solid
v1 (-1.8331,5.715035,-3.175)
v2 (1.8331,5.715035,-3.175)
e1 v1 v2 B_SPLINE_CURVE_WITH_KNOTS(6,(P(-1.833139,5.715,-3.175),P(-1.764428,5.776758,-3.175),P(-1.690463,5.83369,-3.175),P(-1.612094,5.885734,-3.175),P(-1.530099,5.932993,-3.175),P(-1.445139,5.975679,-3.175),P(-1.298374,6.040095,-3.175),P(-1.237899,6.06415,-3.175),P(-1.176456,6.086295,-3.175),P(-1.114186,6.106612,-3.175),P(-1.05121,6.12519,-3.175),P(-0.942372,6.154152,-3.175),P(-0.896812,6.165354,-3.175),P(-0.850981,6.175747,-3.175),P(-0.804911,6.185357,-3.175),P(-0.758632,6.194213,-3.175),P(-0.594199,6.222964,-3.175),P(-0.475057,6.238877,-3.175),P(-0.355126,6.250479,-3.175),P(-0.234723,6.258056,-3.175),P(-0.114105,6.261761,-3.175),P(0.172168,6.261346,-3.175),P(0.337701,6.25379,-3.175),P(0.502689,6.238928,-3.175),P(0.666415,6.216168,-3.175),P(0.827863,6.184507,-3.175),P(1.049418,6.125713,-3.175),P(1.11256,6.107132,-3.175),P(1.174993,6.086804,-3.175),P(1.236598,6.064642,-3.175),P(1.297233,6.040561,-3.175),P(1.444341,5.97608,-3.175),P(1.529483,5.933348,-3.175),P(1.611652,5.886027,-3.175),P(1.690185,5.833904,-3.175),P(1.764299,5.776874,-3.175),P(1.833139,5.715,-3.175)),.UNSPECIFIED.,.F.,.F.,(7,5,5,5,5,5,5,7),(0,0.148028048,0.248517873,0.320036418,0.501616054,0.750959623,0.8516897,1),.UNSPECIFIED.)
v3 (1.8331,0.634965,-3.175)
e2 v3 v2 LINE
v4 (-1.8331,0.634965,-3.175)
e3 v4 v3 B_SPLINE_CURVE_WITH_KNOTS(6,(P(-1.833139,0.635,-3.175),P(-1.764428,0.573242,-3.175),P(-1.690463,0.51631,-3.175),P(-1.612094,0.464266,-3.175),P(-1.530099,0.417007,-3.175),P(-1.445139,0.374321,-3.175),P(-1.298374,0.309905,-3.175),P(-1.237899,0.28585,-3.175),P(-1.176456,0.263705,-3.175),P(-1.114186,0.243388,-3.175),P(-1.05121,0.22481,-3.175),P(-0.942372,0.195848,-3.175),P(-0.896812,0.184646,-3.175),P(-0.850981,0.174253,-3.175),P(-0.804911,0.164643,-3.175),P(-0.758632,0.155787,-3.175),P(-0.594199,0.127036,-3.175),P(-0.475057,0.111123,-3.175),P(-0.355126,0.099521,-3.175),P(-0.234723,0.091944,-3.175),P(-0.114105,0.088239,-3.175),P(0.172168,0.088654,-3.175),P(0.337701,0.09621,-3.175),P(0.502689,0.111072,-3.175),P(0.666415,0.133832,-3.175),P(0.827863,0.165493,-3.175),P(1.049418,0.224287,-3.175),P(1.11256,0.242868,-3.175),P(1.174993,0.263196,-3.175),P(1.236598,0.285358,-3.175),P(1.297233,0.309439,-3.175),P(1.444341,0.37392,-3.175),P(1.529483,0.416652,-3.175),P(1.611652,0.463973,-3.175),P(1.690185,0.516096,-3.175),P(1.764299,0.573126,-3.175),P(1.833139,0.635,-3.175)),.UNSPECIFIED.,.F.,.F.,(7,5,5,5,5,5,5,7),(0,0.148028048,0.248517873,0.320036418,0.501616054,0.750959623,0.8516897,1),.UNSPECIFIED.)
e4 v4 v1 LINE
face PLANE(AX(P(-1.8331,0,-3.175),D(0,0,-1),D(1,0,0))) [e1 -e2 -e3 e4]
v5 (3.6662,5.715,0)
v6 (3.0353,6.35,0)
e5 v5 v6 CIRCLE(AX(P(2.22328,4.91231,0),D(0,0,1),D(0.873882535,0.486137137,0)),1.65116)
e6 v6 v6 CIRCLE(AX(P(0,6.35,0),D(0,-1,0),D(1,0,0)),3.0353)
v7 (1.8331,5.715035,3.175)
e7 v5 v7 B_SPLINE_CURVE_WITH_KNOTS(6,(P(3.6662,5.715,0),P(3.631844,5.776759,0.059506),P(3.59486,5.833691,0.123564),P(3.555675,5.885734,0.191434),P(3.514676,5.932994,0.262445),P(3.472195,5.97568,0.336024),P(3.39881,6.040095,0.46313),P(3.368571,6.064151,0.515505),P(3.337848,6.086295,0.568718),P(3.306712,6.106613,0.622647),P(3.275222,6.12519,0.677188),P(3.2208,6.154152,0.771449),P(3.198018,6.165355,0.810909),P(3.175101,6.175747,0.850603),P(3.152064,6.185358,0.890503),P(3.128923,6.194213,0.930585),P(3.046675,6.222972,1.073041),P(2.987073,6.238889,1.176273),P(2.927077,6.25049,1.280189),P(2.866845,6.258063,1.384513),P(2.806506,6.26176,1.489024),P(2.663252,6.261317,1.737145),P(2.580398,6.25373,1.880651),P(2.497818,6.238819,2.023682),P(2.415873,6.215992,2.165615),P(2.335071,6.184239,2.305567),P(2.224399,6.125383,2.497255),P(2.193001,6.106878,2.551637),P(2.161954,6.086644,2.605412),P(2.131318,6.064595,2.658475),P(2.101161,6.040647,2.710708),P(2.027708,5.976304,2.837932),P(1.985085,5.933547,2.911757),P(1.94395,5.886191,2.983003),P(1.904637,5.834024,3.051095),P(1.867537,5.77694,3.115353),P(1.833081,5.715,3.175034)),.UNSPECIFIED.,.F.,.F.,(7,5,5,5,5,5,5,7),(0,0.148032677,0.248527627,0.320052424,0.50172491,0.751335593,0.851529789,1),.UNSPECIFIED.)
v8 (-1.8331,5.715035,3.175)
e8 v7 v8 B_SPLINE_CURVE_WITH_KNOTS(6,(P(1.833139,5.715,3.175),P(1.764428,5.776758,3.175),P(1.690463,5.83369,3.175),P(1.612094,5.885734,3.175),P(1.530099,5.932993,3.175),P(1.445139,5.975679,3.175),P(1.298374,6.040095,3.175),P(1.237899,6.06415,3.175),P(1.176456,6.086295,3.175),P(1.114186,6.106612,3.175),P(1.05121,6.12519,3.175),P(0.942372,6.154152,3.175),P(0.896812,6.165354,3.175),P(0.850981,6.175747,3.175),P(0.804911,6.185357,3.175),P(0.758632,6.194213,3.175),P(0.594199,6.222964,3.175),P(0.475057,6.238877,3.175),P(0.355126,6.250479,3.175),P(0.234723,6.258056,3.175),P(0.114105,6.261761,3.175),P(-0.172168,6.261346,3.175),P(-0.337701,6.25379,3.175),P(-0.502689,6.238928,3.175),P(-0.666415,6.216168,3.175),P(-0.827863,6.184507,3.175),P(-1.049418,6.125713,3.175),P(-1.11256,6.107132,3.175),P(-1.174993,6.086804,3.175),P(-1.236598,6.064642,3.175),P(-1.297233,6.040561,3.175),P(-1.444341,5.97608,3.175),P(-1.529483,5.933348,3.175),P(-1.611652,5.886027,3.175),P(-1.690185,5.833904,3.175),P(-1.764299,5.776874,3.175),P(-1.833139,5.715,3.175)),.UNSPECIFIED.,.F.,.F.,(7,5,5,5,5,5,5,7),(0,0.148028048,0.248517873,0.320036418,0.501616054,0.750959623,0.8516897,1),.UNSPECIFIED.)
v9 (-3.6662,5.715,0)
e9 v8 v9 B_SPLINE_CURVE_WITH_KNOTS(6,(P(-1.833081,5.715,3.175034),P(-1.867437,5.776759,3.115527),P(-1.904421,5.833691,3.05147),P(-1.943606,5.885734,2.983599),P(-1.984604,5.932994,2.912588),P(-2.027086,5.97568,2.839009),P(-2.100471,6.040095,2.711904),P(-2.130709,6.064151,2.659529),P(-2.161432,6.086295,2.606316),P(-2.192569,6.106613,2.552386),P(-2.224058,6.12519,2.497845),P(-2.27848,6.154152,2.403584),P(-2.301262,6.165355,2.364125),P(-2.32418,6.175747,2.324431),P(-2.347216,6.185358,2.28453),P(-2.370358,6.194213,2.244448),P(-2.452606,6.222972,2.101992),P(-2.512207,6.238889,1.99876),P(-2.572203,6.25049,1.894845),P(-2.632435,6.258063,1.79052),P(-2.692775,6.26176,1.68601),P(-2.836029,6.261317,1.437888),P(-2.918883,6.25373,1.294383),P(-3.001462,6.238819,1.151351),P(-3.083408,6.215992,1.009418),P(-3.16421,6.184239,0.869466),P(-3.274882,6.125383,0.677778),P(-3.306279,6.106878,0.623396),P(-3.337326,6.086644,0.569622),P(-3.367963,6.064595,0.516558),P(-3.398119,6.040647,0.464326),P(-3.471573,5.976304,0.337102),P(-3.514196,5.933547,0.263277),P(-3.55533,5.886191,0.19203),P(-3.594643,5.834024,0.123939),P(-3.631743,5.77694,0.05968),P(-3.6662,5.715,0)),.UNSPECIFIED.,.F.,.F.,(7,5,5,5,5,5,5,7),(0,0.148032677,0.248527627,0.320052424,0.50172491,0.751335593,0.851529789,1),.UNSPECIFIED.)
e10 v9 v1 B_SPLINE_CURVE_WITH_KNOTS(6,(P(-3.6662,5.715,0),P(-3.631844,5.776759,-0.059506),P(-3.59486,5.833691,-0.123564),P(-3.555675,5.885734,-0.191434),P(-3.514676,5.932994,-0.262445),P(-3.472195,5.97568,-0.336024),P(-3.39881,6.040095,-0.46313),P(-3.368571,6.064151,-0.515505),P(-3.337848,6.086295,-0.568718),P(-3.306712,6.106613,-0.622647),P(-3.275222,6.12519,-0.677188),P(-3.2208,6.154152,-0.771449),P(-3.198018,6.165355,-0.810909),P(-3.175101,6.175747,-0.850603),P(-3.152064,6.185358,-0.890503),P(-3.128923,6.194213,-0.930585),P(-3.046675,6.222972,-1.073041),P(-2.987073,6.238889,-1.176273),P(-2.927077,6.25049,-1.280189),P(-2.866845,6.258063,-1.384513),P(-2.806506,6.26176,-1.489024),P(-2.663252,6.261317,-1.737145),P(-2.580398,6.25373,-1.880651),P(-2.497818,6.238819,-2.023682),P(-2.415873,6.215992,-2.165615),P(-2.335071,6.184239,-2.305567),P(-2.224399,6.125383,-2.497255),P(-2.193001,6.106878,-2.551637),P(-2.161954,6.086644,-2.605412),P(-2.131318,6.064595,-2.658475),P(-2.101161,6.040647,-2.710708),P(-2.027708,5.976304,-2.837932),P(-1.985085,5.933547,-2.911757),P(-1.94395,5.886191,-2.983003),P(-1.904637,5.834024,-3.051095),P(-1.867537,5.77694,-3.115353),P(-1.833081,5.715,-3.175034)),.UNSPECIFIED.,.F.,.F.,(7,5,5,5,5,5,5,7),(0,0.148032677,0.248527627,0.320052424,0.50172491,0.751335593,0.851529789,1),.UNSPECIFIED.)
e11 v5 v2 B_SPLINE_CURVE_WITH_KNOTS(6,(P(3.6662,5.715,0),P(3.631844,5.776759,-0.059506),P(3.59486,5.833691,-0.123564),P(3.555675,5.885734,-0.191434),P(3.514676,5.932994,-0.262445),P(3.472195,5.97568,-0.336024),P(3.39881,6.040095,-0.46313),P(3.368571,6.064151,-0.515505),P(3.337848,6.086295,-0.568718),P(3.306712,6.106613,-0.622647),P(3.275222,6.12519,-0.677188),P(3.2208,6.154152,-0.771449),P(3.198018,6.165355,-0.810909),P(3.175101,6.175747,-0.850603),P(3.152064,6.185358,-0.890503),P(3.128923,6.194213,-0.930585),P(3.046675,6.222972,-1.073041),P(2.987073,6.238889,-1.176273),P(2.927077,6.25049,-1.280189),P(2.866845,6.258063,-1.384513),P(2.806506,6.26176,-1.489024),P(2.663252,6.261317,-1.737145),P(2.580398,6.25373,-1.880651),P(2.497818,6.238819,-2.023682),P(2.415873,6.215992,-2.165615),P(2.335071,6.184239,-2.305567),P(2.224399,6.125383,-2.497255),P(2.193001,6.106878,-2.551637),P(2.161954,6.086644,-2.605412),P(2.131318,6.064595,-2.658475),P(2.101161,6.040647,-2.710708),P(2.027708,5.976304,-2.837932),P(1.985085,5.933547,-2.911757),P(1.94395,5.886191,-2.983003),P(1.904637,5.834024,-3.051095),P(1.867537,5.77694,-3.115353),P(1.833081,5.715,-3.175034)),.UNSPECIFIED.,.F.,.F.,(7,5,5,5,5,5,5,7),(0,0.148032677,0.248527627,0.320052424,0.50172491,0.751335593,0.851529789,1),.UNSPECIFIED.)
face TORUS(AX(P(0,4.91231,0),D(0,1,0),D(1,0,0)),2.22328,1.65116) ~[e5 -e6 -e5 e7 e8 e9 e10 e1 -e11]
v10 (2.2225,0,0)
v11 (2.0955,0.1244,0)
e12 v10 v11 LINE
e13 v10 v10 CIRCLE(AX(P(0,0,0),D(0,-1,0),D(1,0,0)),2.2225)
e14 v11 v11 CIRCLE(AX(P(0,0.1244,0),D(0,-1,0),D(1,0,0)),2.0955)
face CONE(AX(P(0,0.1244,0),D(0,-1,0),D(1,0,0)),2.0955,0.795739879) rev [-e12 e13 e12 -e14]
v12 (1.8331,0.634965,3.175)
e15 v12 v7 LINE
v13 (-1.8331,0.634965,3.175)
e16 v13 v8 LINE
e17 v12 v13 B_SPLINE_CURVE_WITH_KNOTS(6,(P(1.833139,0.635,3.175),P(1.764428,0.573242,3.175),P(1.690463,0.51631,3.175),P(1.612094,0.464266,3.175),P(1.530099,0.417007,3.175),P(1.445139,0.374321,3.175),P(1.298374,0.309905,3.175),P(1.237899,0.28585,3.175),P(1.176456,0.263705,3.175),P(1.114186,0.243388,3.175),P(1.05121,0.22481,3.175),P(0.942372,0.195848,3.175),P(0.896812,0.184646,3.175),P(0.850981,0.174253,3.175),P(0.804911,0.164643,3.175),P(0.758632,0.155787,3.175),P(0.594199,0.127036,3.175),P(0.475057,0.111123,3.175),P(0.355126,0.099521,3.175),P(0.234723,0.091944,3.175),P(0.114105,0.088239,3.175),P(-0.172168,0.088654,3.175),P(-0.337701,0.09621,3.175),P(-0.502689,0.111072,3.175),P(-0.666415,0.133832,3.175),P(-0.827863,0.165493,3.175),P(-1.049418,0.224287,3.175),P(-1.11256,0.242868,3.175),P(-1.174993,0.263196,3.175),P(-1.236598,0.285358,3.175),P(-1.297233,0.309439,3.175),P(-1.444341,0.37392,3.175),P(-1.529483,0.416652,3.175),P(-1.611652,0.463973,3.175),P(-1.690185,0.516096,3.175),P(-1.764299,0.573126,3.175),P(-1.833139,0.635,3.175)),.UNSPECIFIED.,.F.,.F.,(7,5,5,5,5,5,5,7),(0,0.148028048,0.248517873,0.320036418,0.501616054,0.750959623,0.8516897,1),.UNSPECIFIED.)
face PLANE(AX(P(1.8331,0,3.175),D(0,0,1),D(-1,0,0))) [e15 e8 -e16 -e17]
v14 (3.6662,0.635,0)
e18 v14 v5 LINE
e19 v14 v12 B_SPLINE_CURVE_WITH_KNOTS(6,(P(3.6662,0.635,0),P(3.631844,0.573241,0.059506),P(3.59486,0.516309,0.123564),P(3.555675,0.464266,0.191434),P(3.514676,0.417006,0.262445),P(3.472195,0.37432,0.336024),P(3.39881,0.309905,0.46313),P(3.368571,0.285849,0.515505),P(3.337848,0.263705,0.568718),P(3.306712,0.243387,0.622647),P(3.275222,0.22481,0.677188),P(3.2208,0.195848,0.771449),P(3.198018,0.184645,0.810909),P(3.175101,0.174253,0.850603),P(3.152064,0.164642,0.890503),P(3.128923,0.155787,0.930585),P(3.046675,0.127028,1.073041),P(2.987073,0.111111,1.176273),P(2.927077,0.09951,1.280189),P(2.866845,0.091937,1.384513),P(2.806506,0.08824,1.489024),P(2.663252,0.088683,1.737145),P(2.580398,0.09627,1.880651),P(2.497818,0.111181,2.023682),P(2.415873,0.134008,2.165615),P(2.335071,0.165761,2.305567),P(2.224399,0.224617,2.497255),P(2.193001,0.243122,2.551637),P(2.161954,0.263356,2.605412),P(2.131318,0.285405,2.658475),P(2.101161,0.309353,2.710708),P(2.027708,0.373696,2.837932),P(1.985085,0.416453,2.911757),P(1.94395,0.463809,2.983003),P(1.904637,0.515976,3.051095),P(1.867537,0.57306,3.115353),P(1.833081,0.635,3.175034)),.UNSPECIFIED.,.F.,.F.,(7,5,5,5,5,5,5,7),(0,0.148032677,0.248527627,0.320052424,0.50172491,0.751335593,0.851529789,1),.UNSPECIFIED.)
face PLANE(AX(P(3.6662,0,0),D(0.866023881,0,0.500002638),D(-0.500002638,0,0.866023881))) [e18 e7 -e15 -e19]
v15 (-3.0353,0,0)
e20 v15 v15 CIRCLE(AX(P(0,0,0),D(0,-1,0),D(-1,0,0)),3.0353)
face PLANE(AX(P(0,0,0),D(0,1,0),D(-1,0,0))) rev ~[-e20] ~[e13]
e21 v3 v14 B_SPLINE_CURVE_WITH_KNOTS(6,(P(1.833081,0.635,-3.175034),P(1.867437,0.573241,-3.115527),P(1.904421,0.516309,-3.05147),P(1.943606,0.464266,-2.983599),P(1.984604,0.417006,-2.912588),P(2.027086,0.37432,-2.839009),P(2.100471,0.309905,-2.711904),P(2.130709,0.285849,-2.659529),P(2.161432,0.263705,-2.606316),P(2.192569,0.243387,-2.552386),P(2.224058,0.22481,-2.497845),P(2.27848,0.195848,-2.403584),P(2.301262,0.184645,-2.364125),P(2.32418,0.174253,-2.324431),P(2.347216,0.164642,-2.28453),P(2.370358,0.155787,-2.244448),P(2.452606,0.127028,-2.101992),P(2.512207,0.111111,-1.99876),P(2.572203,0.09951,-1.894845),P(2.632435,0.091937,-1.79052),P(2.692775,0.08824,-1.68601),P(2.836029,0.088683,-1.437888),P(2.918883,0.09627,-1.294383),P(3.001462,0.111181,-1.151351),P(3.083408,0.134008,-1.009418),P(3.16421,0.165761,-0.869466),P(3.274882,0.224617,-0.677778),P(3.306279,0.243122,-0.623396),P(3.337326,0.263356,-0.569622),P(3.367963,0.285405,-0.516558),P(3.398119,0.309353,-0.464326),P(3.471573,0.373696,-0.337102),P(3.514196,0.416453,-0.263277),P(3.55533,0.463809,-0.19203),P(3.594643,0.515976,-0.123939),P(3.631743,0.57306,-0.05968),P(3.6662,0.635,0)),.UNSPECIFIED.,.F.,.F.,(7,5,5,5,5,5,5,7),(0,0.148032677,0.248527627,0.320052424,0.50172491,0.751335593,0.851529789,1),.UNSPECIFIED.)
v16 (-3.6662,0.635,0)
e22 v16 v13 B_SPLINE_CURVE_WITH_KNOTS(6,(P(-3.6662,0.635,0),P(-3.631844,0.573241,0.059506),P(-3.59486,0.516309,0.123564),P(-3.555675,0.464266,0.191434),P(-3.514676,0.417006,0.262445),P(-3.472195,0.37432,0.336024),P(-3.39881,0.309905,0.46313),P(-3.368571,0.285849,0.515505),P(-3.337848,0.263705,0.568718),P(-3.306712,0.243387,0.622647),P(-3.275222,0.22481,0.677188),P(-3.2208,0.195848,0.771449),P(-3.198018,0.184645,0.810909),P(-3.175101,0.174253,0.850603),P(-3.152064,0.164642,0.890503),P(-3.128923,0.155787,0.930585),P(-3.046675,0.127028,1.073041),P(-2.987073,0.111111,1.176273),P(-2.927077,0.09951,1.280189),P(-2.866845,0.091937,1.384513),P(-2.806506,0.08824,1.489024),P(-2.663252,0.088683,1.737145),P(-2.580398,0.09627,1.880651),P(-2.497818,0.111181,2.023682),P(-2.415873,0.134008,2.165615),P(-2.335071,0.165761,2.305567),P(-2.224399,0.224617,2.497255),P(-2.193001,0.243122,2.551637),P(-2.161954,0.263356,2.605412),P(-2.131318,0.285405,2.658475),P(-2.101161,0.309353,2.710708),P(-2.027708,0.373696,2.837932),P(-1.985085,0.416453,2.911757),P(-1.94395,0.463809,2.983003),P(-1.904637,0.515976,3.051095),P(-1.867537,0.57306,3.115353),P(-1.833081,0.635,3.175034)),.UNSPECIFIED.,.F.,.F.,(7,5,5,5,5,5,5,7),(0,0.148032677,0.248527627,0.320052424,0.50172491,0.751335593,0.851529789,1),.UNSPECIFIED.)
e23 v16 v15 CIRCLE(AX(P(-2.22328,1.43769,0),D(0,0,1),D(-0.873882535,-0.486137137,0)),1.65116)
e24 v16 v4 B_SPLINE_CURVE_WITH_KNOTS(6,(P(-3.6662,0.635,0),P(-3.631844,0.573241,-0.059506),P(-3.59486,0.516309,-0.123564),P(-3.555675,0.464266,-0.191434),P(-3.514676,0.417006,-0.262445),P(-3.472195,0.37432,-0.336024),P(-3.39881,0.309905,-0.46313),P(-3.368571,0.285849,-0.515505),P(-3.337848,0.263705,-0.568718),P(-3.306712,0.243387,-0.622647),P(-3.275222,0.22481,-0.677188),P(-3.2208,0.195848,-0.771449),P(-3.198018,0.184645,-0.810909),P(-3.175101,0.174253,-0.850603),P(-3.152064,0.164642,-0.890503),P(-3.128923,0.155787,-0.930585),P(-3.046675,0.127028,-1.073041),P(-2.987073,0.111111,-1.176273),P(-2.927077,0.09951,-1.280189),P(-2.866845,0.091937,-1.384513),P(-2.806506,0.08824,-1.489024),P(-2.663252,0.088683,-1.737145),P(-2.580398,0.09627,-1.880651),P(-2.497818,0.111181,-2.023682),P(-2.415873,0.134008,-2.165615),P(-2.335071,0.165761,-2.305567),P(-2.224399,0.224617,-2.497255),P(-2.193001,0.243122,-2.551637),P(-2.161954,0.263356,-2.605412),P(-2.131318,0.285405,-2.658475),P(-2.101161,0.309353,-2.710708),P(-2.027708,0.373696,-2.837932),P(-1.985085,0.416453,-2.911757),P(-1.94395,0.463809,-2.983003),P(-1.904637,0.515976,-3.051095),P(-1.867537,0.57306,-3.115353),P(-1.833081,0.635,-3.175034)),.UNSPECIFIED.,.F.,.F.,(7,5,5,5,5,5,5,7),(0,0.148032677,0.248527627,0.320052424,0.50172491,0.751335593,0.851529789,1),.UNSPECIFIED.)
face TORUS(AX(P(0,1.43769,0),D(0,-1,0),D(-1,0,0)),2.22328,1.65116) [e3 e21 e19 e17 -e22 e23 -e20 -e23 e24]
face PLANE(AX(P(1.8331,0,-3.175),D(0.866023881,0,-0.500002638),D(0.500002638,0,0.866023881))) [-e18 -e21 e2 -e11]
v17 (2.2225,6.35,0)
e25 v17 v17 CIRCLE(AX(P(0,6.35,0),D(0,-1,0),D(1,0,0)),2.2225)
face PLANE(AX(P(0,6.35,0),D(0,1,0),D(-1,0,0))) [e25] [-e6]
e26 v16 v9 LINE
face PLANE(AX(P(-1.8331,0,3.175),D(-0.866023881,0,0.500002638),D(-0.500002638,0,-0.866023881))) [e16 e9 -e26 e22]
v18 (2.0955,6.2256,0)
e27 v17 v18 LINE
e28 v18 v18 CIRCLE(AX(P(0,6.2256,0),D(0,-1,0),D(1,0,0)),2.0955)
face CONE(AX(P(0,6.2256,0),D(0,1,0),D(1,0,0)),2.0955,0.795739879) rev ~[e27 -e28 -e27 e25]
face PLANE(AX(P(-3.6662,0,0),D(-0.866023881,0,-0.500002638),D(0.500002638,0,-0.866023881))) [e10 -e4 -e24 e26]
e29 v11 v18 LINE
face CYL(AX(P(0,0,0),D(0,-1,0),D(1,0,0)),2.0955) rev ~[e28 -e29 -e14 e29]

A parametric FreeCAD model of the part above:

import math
import FreeCAD as App
import Part
import Sketcher
Q = App.Units.Quantity


def edges_at(feature, points):
    """Names of the edges that pass closest to the given points."""
    edges = feature.Shape.Edges
    near = lambda p: min(range(len(edges)), key=lambda i: edges[i].distToShape(Part.Vertex(*p))[0])
    return sorted({f"Edge{near(p) + 1}" for p in points})

doc = App.newDocument("Part")
body = doc.addObject("PartDesign::Body", "Body")

sketch1 = doc.addObject("Sketcher::SketchObject", "Sketch")
body.addObject(sketch1)
sketch1.AttachmentSupport = (doc.XZ_Plane, [""])
sketch1.MapMode = "FlatFace"
sketch1.addGeometry([
    Part.LineSegment(App.Vector(3.6662, 0, 0), App.Vector(1.8331, -3.175, 0)),
    Part.LineSegment(App.Vector(1.8331, -3.175, 0), App.Vector(-1.8331, -3.175, 0)),
    Part.LineSegment(App.Vector(-1.8331, -3.175, 0), App.Vector(-3.6662, 0, 0)),
    Part.LineSegment(App.Vector(-3.6662, 0, 0), App.Vector(-1.8331, 3.175, 0)),
    Part.LineSegment(App.Vector(-1.8331, 3.175, 0), App.Vector(1.8331, 3.175, 0)),
    Part.LineSegment(App.Vector(1.8331, 3.175, 0), App.Vector(3.6662, 0, 0)),
], False)
sketch1.addConstraint([
    Sketcher.Constraint("Coincident", 0, 2, 1, 1),
    Sketcher.Constraint("Coincident", 1, 2, 2, 1),
    Sketcher.Constraint("Coincident", 2, 2, 3, 1),
    Sketcher.Constraint("Coincident", 3, 2, 4, 1),
    Sketcher.Constraint("Coincident", 4, 2, 5, 1),
    Sketcher.Constraint("Coincident", 5, 2, 0, 1),
    Sketcher.Constraint("Horizontal", 1),
    Sketcher.Constraint("Horizontal", 4),
    Sketcher.Constraint("Symmetric", 0, 2, 3, 2, -1, 1),
    Sketcher.Constraint("Symmetric", 2, 2, 5, 2, -1, 1),
    Sketcher.Constraint("PointOnObject", 2, 2, -1),
    Sketcher.Constraint("Parallel", 2, 5),
    Sketcher.Constraint("Vertical", 1, 2, 3, 2),
    Sketcher.Constraint("DistanceY", 1, 2, 3, 2, Q("0.25 in")),
    Sketcher.Constraint("Angle", 0, Q("-120.0002 deg")),
    Sketcher.Constraint("DistanceX", 1, 2, 1, 1, Q("3.6662 mm")),
])
pad1 = doc.addObject("PartDesign::Pad", "Pad")
body.addObject(pad1)
pad1.Profile = sketch1
pad1.Length = Q("0.25 in")
pad1.Reversed = True

sketch2 = doc.addObject("Sketcher::SketchObject", "Sketch001")
body.addObject(sketch2)
sketch2.AttachmentSupport = (doc.XZ_Plane, [""])
sketch2.MapMode = "FlatFace"
sketch2.addGeometry(Part.Circle(App.Vector(0, 0, 0), App.Vector(0, 0, 1), 2.0955), False)
sketch2.addConstraint([
    Sketcher.Constraint("Coincident", 0, 3, -1, 1),
    Sketcher.Constraint("Diameter", 0, Q("0.165 in")),
])
pocket1 = doc.addObject("PartDesign::Pocket", "Pocket")
body.addObject(pocket1)
pocket1.Profile = sketch2
pocket1.Length = Q("0.5 in")
doc.recompute()

chamfer = doc.addObject("PartDesign::Chamfer", "Chamfer")
body.addObject(chamfer)
chamfer.Base = (pocket1, edges_at(pocket1, [(-2.095, 0, 0)]))
chamfer.ChamferType = "Two distances"
chamfer.Size = Q("0.005 in")
chamfer.Size2 = Q("0.0048976 in")

sketch3 = doc.addObject("Sketcher::SketchObject", "Sketch002")
body.addObject(sketch3)
sketch3.AttachmentSupport = (doc.XY_Plane, [""])
sketch3.MapMode = "FlatFace"
sketch3.addGeometry([
    Part.LineSegment(App.Vector(-4.1154, -0.8715, 0), App.Vector(0, 0, 0)),
    Part.LineSegment(App.Vector(0, 0, 0), App.Vector(-3.0353, 0, 0)),
    Part.ArcOfCircle(Part.Circle(App.Vector(-2.2234, 1.4376, 0), App.Vector(0, 0, 1), 1.651011), math.radians(-150.913711), math.radians(-119.456055)),
    Part.LineSegment(App.Vector(-3.6662, 0.635, 0), App.Vector(-4.1154, -0.8715, 0)),
], False)
sketch3.addConstraint([
    Sketcher.Constraint("Coincident", 0, 2, 1, 1),
    Sketcher.Constraint("Coincident", 1, 2, 2, 2),
    Sketcher.Constraint("Coincident", 2, 1, 3, 1),
    Sketcher.Constraint("Coincident", 3, 2, 0, 1),
    Sketcher.Constraint("Horizontal", 1),
    Sketcher.Constraint("Coincident", 0, 2, -1, 1),
    Sketcher.Constraint("Radius", 2, Q("0.065 in")),
    Sketcher.Constraint("DistanceX", 1, 2, 1, 1, Q("0.1195 in")),
    Sketcher.Constraint("DistanceY", -1, 1, 2, 1, Q("0.025 in")),
    Sketcher.Constraint("Distance", 3, Q("0.0619 in")),
    Sketcher.Constraint("DistanceY", -1, 1, 2, 3, Q("0.0566 in")),
    Sketcher.Constraint("DistanceY", 3, 2, -1, 1, Q("0.0343 in")),
])
groove = doc.addObject("PartDesign::Groove", "Groove")
body.addObject(groove)
groove.Profile = sketch3
groove.ReferenceAxis = (sketch3, ["V_Axis"])
groove.Angle = 360
doc.recompute()

chamfer2 = doc.addObject("PartDesign::Chamfer", "Chamfer001")
body.addObject(chamfer2)
chamfer2.Base = (groove, edges_at(groove, [(-2.095, 6.35, 0)]))
chamfer2.ChamferType = "Two distances"
chamfer2.Size = Q("0.005 in")
chamfer2.Size2 = Q("0.0048976 in")

sketch4 = doc.addObject("Sketcher::SketchObject", "Sketch003")
body.addObject(sketch4)
sketch4.AttachmentSupport = (doc.XY_Plane, [""])
sketch4.MapMode = "FlatFace"
sketch4.addGeometry([
    Part.LineSegment(App.Vector(4.2663, 7.2532, 0), App.Vector(0, 6.3504, 0)),
    Part.LineSegment(App.Vector(0, 6.3504, 0), App.Vector(3.0353, 6.35, 0)),
    Part.ArcOfCircle(Part.Circle(App.Vector(2.2234, 4.9124, 0), App.Vector(0, 0, 1), 1.651011), math.radians(29.086289), math.radians(60.543945)),
    Part.LineSegment(App.Vector(3.6662, 5.715, 0), App.Vector(4.2663, 7.2532, 0)),
], False)
sketch4.addConstraint([
    Sketcher.Constraint("Coincident", 0, 2, 1, 1),
    Sketcher.Constraint("Coincident", 1, 2, 2, 2),
    Sketcher.Constraint("Coincident", 2, 1, 3, 1),
    Sketcher.Constraint("Coincident", 3, 2, 0, 1),
    Sketcher.Constraint("PointOnObject", 0, 2, -2),
    Sketcher.Constraint("Radius", 2, Q("0.065 in")),
    Sketcher.Constraint("Distance", 3, Q("0.065 in")),
    Sketcher.Constraint("DistanceY", 2, 1, 1, 2, Q("0.025 in")),
    Sketcher.Constraint("Distance", 1, Q("0.1195 in")),
    Sketcher.Constraint("DistanceY", -1, 1, 1, 2, Q("0.25 in")),
    Sketcher.Constraint("DistanceY", 2, 1, 0, 2, Q("0.6354 mm")),
    Sketcher.Constraint("DistanceY", -1, 1, 2, 3, Q("0.1934 in")),
    Sketcher.Constraint("Distance", 0, Q("4.3608 mm")),
])
groove2 = doc.addObject("PartDesign::Groove", "Groove001")
body.addObject(groove2)
groove2.Profile = sketch4
groove2.ReferenceAxis = (sketch4, ["V_Axis"])
groove2.Angle = 360

doc.recompute()
